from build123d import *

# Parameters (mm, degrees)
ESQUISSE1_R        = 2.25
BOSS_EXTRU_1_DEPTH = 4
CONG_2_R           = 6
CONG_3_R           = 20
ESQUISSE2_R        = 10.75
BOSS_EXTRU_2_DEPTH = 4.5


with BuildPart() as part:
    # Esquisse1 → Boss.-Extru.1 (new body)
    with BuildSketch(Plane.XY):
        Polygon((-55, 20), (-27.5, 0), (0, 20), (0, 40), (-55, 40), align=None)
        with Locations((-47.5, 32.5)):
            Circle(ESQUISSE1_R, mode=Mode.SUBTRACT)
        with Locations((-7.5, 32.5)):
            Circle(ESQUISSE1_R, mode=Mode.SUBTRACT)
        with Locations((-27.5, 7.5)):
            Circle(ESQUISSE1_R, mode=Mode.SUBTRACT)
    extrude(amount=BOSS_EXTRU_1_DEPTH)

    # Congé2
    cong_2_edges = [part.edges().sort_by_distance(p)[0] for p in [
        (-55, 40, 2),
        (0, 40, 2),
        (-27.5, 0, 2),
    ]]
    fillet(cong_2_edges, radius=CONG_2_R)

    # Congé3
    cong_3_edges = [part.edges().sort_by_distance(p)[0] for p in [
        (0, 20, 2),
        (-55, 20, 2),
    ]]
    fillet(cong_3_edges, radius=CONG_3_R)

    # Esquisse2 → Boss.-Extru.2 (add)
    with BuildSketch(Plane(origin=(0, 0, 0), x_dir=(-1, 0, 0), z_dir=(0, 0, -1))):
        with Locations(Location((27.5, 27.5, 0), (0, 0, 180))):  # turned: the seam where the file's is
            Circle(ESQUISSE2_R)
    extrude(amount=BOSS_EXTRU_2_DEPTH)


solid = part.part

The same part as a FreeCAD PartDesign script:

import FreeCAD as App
import Part
import Sketcher


def edges_at(feature, points):
    """Names of the edges that pass closest to the given points."""
    edges = feature.Shape.Edges
    near = lambda p: min(range(len(edges)), key=lambda i: edges[i].distToShape(Part.Vertex(*p))[0])
    return sorted({f"Edge{near(p) + 1}" for p in points})

doc = App.newDocument("Part")
body = doc.addObject("PartDesign::Body", "Body")

# Sketch on XY plane
sketch1 = body.newObject("Sketcher::SketchObject", "Sketch")
sketch1.AttachmentSupport = (doc.getObject("XY_Plane"), [""])
sketch1.MapMode = "FlatFace"
sketch1.addGeometry([
    Part.LineSegment(App.Vector(-55, 20, 0), App.Vector(-27.5, 0, 0)),  # 0
    Part.LineSegment(App.Vector(-27.5, 0, 0), App.Vector(0, 20, 0)),  # 1
    Part.LineSegment(App.Vector(0, 20, 0), App.Vector(0, 40, 0)),  # 2
    Part.LineSegment(App.Vector(0, 40, 0), App.Vector(-55, 40, 0)),  # 3
    Part.LineSegment(App.Vector(-55, 40, 0), App.Vector(-55, 20, 0)),  # 4
    Part.Circle(App.Vector(-27.5, 7.5, 0), App.Vector(0, 0, 1), 2.2),  # 5
    Part.Circle(App.Vector(-47.5, 32.5, 0), App.Vector(0, 0, 1), 2.2),  # 6
    Part.Circle(App.Vector(-7.5, 32.5, 0), App.Vector(0, 0, 1), 2.2),  # 7
], False)
sketch1.addConstraint([
    Sketcher.Constraint("Coincident", 0, 2, 1, 1),
    Sketcher.Constraint("Coincident", 1, 2, 2, 1),
    Sketcher.Constraint("Coincident", 2, 2, 3, 1),
    Sketcher.Constraint("Coincident", 3, 2, 4, 1),
    Sketcher.Constraint("Coincident", 4, 2, 0, 1),
    Sketcher.Constraint("Vertical", 2),
    Sketcher.Constraint("Horizontal", 3),
    Sketcher.Constraint("Vertical", 4),
    Sketcher.Constraint("Equal", 5, 6),
    Sketcher.Constraint("Equal", 6, 7),
    Sketcher.Constraint("PointOnObject", 0, 2, -1),
    Sketcher.Constraint("PointOnObject", 1, 2, -2),
    Sketcher.Constraint("Horizontal", 6, 3, 7, 3),
    Sketcher.Constraint("Horizontal", 1, 2, 4, 2),
    Sketcher.Constraint("Vertical", 5, 3, 0, 2),
    Sketcher.Constraint("Equal", 0, 1),
    Sketcher.Constraint("Diameter", 5, 4.5),
    Sketcher.Constraint("DistanceX", 3, 2, 3, 1, 55.0),
    Sketcher.Constraint("DistanceY", 2, 1, 2, 2, 20.0),
    Sketcher.Constraint("DistanceY", -1, 1, 1, 2, 20.0),
    Sketcher.Constraint("DistanceX", 6, 3, 5, 3, 20.0),
    Sketcher.Constraint("DistanceY", 5, 3, 6, 3, 25.0),
    Sketcher.Constraint("DistanceX", 5, 3, 7, 3, 20.0),
    Sketcher.Constraint("DistanceY", -1, 1, 5, 3, 7.5),
])
pad1 = body.newObject("PartDesign::Pad", "Pad")
pad1.Profile = sketch1
pad1.Length = 4
doc.recompute()

fillet = body.newObject("PartDesign::Fillet", "Fillet")
fillet.Base = (pad1, edges_at(pad1, [(-55, 40, 2), (0, 40, 2), (-27.5, 0, 2)]))
fillet.Radius = 6
doc.recompute()

fillet2 = body.newObject("PartDesign::Fillet", "Fillet001")
fillet2.Base = (fillet, edges_at(fillet, [(0, 20, 2), (-55, 20, 2)]))
fillet2.Radius = 20

# Sketch on XY plane
sketch2 = body.newObject("Sketcher::SketchObject", "Sketch001")
sketch2.AttachmentSupport = (doc.getObject("XY_Plane"), [""])
sketch2.MapMode = "FlatFace"
sketch2.addGeometry(Part.Circle(App.Vector(-28, 28, 0), App.Vector(0, 0, 1), 11), False)
sketch2.addConstraint([
    Sketcher.Constraint("Diameter", 0, 21.5),
    Sketcher.Constraint("DistanceX", 0, 3, -1, 1, 27.5),
    Sketcher.Constraint("DistanceY", -1, 1, 0, 3, 27.5),
])
pad2 = body.newObject("PartDesign::Pad", "Pad001")
pad2.Profile = sketch2
pad2.Length = 4.5
pad2.Reversed = True

doc.recompute()
